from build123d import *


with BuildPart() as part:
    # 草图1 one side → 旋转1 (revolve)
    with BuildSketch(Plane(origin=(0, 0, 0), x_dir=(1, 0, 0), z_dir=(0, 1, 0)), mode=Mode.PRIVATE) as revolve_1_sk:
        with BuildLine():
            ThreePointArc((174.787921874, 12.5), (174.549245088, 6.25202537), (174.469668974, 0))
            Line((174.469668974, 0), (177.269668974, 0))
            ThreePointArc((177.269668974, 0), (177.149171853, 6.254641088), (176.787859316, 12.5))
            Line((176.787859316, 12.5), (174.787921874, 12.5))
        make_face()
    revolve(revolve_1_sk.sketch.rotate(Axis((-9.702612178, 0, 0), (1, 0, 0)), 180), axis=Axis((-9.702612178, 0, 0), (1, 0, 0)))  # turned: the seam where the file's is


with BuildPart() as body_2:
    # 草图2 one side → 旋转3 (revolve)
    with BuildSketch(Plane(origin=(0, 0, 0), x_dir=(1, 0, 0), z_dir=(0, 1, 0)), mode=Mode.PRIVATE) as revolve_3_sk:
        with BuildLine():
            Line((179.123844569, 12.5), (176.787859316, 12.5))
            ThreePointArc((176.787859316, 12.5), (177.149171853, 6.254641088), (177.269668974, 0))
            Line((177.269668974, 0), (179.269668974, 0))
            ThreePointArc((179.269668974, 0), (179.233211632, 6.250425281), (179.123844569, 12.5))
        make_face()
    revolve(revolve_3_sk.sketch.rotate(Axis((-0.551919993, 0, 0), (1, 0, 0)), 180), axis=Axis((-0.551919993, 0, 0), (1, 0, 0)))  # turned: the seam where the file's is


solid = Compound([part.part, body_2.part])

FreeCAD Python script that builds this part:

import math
import FreeCAD as App
import Part
import Sketcher
from FreeCAD import Vector
Q = App.Units.Quantity

doc = App.newDocument("Part")
params = doc.addObject("Spreadsheet::Sheet", "Params")
for row, (alias, value) in enumerate([
    ("sketch1_radius", "245.639999 mm"),
    ("sketch1_radius2", "162.390001 mm"),
    ("sketch1_width", "2.8 mm"),
    ("revolution_angle", "360 deg"),
    ("sketch2_width", "2 mm"),
    ("sketch2_radius", "162.390001 mm"),
    ("revolution2_angle", "360 deg"),
], start=1):
    params.set(f"A{row}", alias)
    params.set(f"B{row}", "=" + value)
    params.setAlias(f"B{row}", alias)

body = doc.addObject("PartDesign::Body", "Body")

sketch1 = body.newObject("Sketcher::SketchObject", "Sketch")
sketch1.AttachmentSupport = (doc.getObject("XZ_Plane"), [""])
sketch1.MapMode = "FlatFace"
sketch1.addGeometry(Part.ArcOfCircle(Part.Circle(Vector(420.1, 0, 0), Vector(0, 0, 1), 245.6), math.radians(180), math.radians(182.92)), False)
sketch1.addGeometry(Part.LineSegment(Vector(174.5, 0, 0), Vector(177.3, 0, 0)), False)
sketch1.addGeometry(Part.ArcOfCircle(Part.Circle(Vector(14.9, 0, 0), Vector(0, 0, 1), 162.4), math.radians(-4.41), math.radians(0)), False)
sketch1.addGeometry(Part.LineSegment(Vector(176.8, -12.5, 0), Vector(174.8, -12.5, 0)), False)
sketch1.addConstraint(Sketcher.Constraint("Coincident", 0, 1, 1, 1))
sketch1.addConstraint(Sketcher.Constraint("Coincident", 1, 2, 2, 2))
sketch1.addConstraint(Sketcher.Constraint("Coincident", 2, 1, 3, 1))
sketch1.addConstraint(Sketcher.Constraint("Coincident", 3, 2, 0, 2))
sketch1.addConstraint(Sketcher.Constraint("Horizontal", 1))
sketch1.addConstraint(Sketcher.Constraint("Horizontal", 3))
sketch1.addConstraint(Sketcher.Constraint("PointOnObject", 0, 3, -1))
sketch1.addConstraint(Sketcher.Constraint("PointOnObject", 2, 3, -1))
sketch1.addConstraint(Sketcher.Constraint("PointOnObject", 0, 1, -1))
sketch1.addConstraint(Sketcher.Constraint("Radius", 0, Q("245.639999 mm")))
sketch1.addConstraint(Sketcher.Constraint("Radius", 2, Q("162.390001 mm")))
sketch1.addConstraint(Sketcher.Constraint("DistanceX", 1, 1, 1, 2, Q("2.8 mm")))
sketch1.addConstraint(Sketcher.Constraint("DistanceY", 2, 1, -1, 1, Q("12.5 mm")))
sketch1.addConstraint(Sketcher.Constraint("DistanceX", -1, 1, 2, 3, Q("14.879668 mm")))
sketch1.setExpression("Constraints[9]", "Params.sketch1_radius")
sketch1.setExpression("Constraints[10]", "Params.sketch1_radius2")
sketch1.setExpression("Constraints[11]", "Params.sketch1_width")
revolution = body.newObject("PartDesign::Revolution", "Revolution")
revolution.Profile = sketch1
revolution.ReferenceAxis = (sketch1, ["H_Axis"])
revolution.setExpression("Angle", "Params.revolution_angle")
body2 = doc.addObject("PartDesign::Body", "Body001")

sketch2 = body2.newObject("Sketcher::SketchObject", "Sketch001")
sketch2.AttachmentSupport = (doc.getObject("XZ_Plane001"), [""])
sketch2.MapMode = "FlatFace"
sketch2.addGeometry(Part.LineSegment(Vector(179.1, -12.5, 0), Vector(176.8, -12.5, 0)), False)
sketch2.addGeometry(Part.ArcOfCircle(Part.Circle(Vector(14.9, 0, 0), Vector(0, 0, 1), 162.4), math.radians(-4.41), math.radians(0)), False)
sketch2.addGeometry(Part.LineSegment(Vector(177.3, 0, 0), Vector(179.3, 0, 0)), False)
sketch2.addGeometry(Part.ArcOfCircle(Part.Circle(Vector(-356.6, 0, 0), Vector(0, 0, 1), 535.8), math.radians(-1.34), math.radians(0)), False)
sketch2.addConstraint(Sketcher.Constraint("Coincident", 0, 2, 1, 1))
sketch2.addConstraint(Sketcher.Constraint("Coincident", 1, 2, 2, 1))
sketch2.addConstraint(Sketcher.Constraint("Coincident", 2, 2, 3, 2))
sketch2.addConstraint(Sketcher.Constraint("Coincident", 3, 1, 0, 1))
sketch2.addConstraint(Sketcher.Constraint("Horizontal", 0))
sketch2.addConstraint(Sketcher.Constraint("Horizontal", 2))
sketch2.addConstraint(Sketcher.Constraint("PointOnObject", 1, 3, -1))
sketch2.addConstraint(Sketcher.Constraint("PointOnObject", 3, 3, -1))
sketch2.addConstraint(Sketcher.Constraint("PointOnObject", 1, 2, -1))
sketch2.addConstraint(Sketcher.Constraint("DistanceX", 2, 1, 2, 2, Q("2 mm")))
sketch2.addConstraint(Sketcher.Constraint("Radius", 1, Q("162.390001 mm")))
sketch2.addConstraint(Sketcher.Constraint("DistanceY", 0, 2, -1, 1, Q("12.5 mm")))
sketch2.addConstraint(Sketcher.Constraint("Radius", 3, Q("535.820005 mm")))
sketch2.addConstraint(Sketcher.Constraint("DistanceX", -1, 1, 1, 3, Q("14.879668 mm")))
sketch2.setExpression("Constraints[9]", "Params.sketch2_width")
sketch2.setExpression("Constraints[10]", "Params.sketch2_radius")
revolution2 = body2.newObject("PartDesign::Revolution", "Revolution001")
revolution2.Profile = sketch2
revolution2.ReferenceAxis = (sketch2, ["H_Axis"])
revolution2.setExpression("Angle", "Params.revolution2_angle")

doc.recompute()
